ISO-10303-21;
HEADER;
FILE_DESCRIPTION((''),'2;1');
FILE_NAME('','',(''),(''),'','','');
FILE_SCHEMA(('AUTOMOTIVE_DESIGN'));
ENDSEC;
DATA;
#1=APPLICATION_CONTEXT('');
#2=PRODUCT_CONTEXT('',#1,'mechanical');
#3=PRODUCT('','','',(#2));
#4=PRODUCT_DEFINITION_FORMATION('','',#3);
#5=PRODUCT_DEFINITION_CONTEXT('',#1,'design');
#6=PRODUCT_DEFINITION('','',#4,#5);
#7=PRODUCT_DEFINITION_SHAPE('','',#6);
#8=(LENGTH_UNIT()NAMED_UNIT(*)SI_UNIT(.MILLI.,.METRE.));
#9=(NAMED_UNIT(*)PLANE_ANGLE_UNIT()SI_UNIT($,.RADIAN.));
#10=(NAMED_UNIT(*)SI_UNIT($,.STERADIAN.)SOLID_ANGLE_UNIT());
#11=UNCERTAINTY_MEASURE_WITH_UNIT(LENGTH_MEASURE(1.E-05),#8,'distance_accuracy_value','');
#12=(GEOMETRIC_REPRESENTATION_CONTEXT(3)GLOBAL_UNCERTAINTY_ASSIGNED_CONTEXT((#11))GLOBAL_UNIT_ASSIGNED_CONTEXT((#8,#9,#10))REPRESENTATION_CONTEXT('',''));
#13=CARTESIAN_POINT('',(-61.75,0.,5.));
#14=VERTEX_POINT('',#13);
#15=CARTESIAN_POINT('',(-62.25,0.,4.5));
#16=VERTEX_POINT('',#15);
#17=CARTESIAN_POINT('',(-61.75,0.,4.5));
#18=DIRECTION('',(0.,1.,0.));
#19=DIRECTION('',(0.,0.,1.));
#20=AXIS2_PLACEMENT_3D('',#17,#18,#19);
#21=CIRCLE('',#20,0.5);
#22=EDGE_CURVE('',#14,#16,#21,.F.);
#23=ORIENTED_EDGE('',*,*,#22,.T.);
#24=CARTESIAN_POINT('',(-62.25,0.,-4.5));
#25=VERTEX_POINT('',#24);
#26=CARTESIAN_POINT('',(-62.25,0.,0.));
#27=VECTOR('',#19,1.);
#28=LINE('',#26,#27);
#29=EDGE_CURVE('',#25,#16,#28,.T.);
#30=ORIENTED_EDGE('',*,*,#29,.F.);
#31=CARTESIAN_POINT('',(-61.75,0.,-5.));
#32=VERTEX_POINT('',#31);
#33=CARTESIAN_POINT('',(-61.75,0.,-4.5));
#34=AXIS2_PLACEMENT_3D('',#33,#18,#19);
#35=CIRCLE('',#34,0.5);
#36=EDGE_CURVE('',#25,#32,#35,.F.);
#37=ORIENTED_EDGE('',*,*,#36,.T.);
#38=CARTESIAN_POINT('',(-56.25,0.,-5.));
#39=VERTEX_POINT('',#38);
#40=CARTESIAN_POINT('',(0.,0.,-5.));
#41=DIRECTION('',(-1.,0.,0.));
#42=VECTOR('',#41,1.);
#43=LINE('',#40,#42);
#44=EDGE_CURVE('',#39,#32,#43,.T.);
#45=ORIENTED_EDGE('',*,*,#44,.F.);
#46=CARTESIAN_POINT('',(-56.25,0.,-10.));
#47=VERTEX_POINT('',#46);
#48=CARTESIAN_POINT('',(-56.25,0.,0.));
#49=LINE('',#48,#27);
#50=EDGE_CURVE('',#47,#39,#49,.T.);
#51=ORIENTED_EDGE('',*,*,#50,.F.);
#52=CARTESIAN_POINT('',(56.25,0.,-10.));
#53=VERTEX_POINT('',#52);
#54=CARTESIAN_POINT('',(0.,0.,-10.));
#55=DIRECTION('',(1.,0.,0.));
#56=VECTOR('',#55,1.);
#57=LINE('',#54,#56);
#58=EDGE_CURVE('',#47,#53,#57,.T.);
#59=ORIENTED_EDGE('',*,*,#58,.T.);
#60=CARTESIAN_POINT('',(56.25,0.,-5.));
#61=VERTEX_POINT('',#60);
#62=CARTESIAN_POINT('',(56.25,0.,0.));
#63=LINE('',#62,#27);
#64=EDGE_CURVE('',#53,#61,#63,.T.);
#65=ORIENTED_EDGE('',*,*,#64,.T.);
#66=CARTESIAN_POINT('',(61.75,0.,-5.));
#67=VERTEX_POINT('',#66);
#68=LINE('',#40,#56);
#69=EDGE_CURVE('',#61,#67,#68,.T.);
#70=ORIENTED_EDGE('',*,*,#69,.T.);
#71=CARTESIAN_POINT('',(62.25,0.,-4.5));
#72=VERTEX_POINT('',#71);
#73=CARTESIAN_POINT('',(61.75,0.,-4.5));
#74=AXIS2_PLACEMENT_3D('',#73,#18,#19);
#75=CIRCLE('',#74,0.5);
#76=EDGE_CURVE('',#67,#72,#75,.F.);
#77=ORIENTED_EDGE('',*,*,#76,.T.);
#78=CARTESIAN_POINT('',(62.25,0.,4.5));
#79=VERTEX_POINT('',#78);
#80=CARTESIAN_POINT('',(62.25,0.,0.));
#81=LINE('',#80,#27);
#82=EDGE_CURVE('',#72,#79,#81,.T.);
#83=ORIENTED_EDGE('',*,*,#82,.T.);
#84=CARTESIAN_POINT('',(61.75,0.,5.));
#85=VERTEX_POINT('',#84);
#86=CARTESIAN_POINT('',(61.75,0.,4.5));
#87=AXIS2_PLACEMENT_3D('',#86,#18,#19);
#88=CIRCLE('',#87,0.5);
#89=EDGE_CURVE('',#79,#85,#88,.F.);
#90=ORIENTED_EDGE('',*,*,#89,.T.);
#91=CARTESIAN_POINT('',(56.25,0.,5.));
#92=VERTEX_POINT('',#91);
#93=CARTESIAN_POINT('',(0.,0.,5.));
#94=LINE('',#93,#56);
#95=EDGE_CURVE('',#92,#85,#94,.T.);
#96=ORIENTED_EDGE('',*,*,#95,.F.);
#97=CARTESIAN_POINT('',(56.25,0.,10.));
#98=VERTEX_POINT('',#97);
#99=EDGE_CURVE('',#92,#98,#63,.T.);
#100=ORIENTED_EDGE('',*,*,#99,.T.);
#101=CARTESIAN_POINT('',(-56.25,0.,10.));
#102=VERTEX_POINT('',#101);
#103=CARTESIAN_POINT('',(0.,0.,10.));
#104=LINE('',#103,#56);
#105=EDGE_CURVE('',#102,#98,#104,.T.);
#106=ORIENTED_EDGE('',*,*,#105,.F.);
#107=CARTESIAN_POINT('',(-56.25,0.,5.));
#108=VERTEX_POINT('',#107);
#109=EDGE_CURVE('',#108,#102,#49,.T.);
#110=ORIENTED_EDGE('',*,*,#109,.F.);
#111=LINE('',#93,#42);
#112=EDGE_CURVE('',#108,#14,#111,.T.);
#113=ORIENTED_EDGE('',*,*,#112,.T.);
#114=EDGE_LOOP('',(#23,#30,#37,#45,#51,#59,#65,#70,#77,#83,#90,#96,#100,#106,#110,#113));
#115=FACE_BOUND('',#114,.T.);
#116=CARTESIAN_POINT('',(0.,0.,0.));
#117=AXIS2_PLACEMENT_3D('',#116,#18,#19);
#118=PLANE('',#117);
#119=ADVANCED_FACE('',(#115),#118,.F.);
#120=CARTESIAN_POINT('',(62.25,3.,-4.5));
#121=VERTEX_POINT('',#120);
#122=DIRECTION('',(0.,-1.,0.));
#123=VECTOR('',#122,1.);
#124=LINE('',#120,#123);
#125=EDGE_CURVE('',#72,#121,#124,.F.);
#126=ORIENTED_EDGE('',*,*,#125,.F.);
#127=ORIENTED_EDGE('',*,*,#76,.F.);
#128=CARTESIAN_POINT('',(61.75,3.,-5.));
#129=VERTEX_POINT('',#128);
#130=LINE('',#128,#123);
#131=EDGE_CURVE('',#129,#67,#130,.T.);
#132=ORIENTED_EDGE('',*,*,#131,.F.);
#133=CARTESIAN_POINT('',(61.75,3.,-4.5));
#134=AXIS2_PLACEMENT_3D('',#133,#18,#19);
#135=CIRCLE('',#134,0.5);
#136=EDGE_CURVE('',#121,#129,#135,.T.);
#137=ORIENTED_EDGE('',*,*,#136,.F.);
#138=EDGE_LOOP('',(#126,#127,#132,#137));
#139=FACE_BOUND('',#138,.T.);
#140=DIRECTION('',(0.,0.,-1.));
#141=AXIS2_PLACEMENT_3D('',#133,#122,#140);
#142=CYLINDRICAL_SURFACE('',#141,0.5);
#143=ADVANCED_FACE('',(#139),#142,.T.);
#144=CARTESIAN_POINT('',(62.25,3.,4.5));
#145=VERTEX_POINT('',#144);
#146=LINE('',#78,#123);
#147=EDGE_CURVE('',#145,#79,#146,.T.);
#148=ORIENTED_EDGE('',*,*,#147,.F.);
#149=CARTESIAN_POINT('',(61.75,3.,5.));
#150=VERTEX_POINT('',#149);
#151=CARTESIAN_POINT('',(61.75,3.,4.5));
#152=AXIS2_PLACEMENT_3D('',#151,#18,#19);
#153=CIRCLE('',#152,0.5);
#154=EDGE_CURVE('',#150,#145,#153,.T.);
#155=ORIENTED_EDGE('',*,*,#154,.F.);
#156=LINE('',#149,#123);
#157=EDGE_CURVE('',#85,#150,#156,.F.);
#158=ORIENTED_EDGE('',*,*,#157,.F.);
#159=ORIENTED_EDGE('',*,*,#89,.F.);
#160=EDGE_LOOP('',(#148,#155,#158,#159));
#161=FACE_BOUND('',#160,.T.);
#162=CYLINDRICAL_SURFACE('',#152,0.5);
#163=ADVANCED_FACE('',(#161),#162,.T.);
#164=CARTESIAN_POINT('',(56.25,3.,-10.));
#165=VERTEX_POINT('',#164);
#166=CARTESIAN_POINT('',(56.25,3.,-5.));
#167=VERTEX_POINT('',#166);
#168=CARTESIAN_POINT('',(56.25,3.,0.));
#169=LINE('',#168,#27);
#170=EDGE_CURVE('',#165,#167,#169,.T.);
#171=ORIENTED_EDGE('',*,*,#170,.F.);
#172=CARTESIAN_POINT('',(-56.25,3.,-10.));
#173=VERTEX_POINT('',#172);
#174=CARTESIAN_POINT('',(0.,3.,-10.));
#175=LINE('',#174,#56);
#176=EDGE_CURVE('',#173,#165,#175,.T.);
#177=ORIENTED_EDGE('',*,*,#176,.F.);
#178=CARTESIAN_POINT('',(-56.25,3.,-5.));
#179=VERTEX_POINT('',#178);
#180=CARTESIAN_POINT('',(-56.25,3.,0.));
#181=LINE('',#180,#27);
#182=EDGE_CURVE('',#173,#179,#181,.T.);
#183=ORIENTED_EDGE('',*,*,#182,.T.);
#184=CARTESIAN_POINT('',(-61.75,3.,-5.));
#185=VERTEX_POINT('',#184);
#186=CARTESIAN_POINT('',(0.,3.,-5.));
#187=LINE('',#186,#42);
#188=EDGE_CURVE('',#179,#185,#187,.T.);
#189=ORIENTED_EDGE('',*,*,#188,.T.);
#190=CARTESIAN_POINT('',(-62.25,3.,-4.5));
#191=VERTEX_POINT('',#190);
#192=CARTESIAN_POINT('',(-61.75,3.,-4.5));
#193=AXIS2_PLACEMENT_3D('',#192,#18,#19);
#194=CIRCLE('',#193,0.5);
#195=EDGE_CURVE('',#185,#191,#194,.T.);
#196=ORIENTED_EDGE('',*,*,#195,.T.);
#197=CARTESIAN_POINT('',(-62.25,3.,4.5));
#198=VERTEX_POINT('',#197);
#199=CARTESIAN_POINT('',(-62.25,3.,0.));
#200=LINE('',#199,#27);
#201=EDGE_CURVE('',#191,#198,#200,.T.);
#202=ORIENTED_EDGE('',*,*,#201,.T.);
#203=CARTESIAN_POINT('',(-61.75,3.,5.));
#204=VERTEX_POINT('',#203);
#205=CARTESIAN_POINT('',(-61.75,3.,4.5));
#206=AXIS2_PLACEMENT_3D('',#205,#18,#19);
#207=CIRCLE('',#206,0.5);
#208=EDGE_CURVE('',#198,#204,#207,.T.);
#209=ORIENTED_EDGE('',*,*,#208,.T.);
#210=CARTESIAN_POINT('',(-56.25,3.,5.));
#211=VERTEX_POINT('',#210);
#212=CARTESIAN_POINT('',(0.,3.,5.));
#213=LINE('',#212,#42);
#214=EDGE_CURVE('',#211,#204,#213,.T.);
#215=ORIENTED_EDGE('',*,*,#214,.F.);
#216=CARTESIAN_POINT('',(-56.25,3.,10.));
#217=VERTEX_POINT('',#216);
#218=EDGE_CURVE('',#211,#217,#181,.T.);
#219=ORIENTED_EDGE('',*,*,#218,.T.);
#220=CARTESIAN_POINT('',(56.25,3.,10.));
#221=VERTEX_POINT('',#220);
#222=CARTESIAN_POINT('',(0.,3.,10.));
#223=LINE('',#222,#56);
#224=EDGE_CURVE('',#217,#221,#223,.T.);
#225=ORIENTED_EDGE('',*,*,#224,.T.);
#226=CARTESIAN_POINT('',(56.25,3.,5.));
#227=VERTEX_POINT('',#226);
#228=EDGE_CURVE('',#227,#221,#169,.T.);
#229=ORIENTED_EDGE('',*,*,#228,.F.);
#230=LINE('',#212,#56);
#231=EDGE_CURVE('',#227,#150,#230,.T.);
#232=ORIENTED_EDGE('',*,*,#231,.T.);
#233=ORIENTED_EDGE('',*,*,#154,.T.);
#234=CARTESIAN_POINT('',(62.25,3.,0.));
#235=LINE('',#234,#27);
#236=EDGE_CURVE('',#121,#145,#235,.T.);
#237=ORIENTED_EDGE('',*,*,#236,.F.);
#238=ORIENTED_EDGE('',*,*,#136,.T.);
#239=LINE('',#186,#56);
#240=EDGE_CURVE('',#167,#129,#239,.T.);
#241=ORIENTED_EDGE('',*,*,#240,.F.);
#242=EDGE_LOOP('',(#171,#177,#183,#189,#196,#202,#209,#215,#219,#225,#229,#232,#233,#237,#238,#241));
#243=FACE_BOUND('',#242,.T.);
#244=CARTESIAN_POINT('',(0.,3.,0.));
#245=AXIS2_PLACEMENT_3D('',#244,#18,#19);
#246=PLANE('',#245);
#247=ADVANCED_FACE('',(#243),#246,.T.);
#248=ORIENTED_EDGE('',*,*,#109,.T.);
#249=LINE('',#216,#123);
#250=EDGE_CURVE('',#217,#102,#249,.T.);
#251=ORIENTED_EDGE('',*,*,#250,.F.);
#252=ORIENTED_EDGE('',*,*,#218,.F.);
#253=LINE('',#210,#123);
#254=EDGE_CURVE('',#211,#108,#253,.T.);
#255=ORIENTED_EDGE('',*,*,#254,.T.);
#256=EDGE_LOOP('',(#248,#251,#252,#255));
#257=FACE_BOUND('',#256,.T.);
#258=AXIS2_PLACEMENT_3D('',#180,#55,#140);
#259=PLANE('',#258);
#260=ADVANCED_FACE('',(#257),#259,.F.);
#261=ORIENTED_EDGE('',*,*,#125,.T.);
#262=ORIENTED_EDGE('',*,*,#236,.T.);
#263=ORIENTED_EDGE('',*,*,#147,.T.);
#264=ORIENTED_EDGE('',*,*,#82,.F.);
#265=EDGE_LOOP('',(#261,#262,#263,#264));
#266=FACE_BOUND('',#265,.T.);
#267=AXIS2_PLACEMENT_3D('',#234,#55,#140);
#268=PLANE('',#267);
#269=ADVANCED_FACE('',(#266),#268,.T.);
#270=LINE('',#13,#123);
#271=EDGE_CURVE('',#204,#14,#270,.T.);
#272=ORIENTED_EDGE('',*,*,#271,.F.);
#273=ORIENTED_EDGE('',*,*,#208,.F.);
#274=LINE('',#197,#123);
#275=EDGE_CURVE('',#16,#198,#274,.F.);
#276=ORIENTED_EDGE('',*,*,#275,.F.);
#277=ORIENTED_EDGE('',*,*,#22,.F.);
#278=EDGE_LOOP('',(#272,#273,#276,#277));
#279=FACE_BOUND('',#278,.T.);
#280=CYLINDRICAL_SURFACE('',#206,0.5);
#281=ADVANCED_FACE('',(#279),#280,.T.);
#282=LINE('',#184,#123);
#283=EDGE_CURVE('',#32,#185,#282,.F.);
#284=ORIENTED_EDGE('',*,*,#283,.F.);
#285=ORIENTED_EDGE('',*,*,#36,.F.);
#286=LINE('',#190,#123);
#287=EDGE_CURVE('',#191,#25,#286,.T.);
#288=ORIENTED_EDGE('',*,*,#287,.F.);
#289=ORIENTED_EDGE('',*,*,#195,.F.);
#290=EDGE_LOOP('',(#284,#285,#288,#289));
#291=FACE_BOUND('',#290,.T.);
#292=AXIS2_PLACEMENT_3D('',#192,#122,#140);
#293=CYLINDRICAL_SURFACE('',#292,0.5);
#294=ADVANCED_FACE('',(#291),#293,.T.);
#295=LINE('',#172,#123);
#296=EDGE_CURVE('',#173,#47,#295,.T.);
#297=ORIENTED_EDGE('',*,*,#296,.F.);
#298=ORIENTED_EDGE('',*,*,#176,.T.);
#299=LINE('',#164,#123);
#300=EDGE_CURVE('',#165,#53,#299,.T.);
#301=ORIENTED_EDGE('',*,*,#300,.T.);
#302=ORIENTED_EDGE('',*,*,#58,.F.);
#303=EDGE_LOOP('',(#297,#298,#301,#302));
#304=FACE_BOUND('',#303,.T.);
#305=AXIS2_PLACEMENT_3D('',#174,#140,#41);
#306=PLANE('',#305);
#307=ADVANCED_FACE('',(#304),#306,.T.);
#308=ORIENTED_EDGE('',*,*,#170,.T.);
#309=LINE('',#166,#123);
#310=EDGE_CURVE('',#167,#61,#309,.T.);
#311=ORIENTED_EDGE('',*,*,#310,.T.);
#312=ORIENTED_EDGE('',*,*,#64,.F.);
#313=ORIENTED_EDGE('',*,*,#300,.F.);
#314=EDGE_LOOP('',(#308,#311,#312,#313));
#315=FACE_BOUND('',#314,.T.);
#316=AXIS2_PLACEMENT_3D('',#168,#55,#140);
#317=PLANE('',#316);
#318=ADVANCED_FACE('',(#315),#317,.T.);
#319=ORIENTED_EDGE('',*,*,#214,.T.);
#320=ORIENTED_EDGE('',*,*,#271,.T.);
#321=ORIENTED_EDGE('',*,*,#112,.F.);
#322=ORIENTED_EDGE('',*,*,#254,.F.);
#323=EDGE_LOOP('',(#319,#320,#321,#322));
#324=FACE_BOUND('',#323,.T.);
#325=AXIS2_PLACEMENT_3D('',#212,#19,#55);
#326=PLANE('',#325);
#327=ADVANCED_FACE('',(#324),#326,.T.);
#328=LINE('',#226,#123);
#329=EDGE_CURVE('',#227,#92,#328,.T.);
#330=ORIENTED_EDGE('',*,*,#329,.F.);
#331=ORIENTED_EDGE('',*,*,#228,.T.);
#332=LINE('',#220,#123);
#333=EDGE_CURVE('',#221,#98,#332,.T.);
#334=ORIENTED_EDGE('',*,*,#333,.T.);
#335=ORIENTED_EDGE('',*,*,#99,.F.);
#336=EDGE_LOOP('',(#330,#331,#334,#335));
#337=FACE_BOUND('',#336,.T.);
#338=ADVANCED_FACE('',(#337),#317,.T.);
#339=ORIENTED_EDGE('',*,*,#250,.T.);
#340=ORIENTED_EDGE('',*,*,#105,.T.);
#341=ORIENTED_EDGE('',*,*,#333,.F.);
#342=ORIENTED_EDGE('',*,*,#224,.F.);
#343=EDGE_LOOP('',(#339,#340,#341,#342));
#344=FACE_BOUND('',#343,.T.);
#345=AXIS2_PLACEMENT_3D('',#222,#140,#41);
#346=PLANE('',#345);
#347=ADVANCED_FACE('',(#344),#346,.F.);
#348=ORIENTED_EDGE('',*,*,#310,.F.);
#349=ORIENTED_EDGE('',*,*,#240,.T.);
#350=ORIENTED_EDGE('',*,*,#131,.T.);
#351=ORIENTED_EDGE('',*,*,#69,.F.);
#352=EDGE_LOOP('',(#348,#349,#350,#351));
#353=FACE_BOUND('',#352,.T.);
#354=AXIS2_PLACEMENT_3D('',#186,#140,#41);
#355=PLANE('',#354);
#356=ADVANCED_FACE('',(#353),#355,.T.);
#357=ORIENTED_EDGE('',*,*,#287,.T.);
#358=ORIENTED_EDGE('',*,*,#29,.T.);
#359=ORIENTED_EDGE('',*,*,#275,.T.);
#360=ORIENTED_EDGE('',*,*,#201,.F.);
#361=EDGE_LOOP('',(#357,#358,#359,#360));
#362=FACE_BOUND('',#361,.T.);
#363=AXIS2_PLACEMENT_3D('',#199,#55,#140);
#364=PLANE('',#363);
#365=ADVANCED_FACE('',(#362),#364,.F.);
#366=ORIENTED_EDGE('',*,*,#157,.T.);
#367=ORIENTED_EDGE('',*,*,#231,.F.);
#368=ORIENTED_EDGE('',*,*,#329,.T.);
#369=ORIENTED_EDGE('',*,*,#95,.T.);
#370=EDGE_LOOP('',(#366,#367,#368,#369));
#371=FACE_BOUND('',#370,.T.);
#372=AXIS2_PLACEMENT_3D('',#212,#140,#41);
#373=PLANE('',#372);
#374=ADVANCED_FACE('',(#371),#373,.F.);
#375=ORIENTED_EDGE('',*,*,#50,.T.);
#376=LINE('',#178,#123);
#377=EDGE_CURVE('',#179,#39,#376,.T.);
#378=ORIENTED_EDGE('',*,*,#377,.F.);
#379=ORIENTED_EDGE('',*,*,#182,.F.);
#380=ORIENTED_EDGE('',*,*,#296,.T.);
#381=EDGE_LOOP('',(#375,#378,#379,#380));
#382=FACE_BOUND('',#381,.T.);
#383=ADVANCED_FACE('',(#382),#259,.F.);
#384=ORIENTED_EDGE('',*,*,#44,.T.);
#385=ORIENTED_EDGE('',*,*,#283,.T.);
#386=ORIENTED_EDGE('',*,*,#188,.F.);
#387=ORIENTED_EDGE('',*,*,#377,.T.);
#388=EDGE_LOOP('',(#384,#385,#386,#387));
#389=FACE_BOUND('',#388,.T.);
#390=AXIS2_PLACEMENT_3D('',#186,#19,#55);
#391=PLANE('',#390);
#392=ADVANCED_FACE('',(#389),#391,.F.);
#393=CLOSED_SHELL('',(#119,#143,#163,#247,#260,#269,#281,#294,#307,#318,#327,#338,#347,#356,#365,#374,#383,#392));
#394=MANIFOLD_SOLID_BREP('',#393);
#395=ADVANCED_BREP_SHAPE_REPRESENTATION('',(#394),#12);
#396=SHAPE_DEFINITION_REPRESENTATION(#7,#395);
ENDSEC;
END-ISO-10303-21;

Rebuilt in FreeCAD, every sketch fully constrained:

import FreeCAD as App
import Part
import Sketcher
from FreeCAD import Vector


def edges_at(feature, points):
    """Names of the edges that pass closest to the given points."""
    edges = feature.Shape.Edges
    near = lambda p: min(range(len(edges)), key=lambda i: edges[i].distToShape(Part.Vertex(*p))[0])
    return sorted({f"Edge{near(p) + 1}" for p in points})


def add_polygon(sketch, points):
    """Adds a closed chain of lines whose ends are joined by coincident constraints."""
    first, n = sketch.GeometryCount, len(points)
    for a, b in zip(points, points[1:] + points[:1]):
        sketch.addGeometry(Part.LineSegment(App.Vector(*a, 0), App.Vector(*b, 0)), False)
    for i in range(n):
        sketch.addConstraint(Sketcher.Constraint("Coincident", first + i, 2, first + (i + 1) % n, 1))

doc = App.newDocument("Part")
params = doc.addObject("Spreadsheet::Sheet", "Params")
for row, (alias, value) in enumerate([
    ("sketch1_width", "6 mm"),
    ("sketch1_height", "10 mm"),
    ("sketch1_height2", "5 mm"),
    ("sketch1_width2", "112.5 mm"),
    ("pad1_length", "3 mm"),
    ("fillet_radius", "0.5 mm"),
], start=1):
    params.set(f"A{row}", alias)
    params.set(f"B{row}", "=" + value)
    params.setAlias(f"B{row}", alias)

body = doc.addObject("PartDesign::Body", "Body")

# Sketch on XZ plane
sketch1 = doc.addObject("Sketcher::SketchObject", "Sketch")
body.addObject(sketch1)
sketch1.AttachmentSupport = (doc.XZ_Plane, [""])
sketch1.MapMode = "FlatFace"
add_polygon(sketch1, [(-62, -5), (-62, 5), (-56, 5), (-56, 10), (56, 10), (56, 5), (62, 5), (62, -5), (56, -5), (56, -10), (-56, -10), (-56, -5)])  # lines 0-11
sketch1.addConstraint(Sketcher.Constraint("Vertical", 0))
sketch1.addConstraint(Sketcher.Constraint("Horizontal", 1))
sketch1.addConstraint(Sketcher.Constraint("Vertical", 2))
sketch1.addConstraint(Sketcher.Constraint("Horizontal", 3))
sketch1.addConstraint(Sketcher.Constraint("Vertical", 4))
sketch1.addConstraint(Sketcher.Constraint("Horizontal", 5))
sketch1.addConstraint(Sketcher.Constraint("Vertical", 6))
sketch1.addConstraint(Sketcher.Constraint("Horizontal", 7))
sketch1.addConstraint(Sketcher.Constraint("Vertical", 8))
sketch1.addConstraint(Sketcher.Constraint("Horizontal", 9))
sketch1.addConstraint(Sketcher.Constraint("Vertical", 10))
sketch1.addConstraint(Sketcher.Constraint("Horizontal", 11))
sketch1.addConstraint(Sketcher.Constraint("Symmetric", 0, 2, 6, 2, -1, 1))
sketch1.addConstraint(Sketcher.Constraint("Symmetric", 2, 2, 8, 2, -1, 1))
sketch1.addConstraint(Sketcher.Constraint("Symmetric", 4, 2, 10, 2, -1, 1))
sketch1.addConstraint(Sketcher.Constraint("Symmetric", 1, 2, 4, 2, -2))
sketch1.addConstraint(Sketcher.Constraint("DistanceX", 1, 1, 1, 2, 6.0))
sketch1.addConstraint(Sketcher.Constraint("DistanceY", 0, 1, 0, 2, 10.0))
sketch1.addConstraint(Sketcher.Constraint("DistanceY", 2, 1, 2, 2, 5.0))
sketch1.addConstraint(Sketcher.Constraint("DistanceX", 3, 1, 3, 2, 112.5))
sketch1.setExpression("Constraints[28]", "Params.sketch1_width")
sketch1.setExpression("Constraints[29]", "Params.sketch1_height")
sketch1.setExpression("Constraints[30]", "Params.sketch1_height2")
sketch1.setExpression("Constraints[31]", "Params.sketch1_width2")
pad1 = doc.addObject("PartDesign::Pad", "Pad")
body.addObject(pad1)
pad1.Profile = sketch1
pad1.setExpression("Length", "Params.pad1_length")
pad1.Reversed = True
doc.recompute()

fillet = doc.addObject("PartDesign::Fillet", "Fillet")
body.addObject(fillet)
fillet.Base = (pad1, edges_at(pad1, [
    (-62.25, 1.5, 5),
    (-62.25, 1.5, -5),
    (62.25, 1.5, -5),
    (62.25, 1.5, 5),
]))
fillet.setExpression("Radius", "Params.fillet_radius")

doc.recompute()
